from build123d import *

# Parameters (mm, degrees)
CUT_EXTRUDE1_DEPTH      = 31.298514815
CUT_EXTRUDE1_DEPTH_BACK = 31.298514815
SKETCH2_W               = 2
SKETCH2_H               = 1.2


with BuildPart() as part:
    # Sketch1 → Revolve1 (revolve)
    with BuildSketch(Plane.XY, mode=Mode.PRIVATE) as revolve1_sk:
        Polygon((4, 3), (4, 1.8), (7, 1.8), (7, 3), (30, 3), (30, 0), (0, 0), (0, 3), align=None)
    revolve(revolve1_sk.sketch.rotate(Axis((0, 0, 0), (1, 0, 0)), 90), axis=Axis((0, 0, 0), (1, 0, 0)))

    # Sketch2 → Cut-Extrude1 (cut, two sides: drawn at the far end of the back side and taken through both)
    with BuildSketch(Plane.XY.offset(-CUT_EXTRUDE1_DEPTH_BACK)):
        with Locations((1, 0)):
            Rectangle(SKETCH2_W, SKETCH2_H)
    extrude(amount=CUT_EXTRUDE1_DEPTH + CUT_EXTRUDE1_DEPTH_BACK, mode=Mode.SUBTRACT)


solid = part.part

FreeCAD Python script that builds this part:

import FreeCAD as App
import Part
import Sketcher

V = App.Vector

doc = App.newDocument("Part")
body = doc.addObject("PartDesign::Body", "Body")

# Sketch on XY plane
sketch1 = body.newObject("Sketcher::SketchObject", "Sketch")
sketch1.AttachmentSupport = (doc.getObject("XY_Plane"), [""])
sketch1.MapMode = "FlatFace"
sketch1.addGeometry([
    Part.LineSegment(V(4, 1.8, 0), V(4, 3, 0)),  # 0
    Part.LineSegment(V(4, 3, 0), V(0, 3, 0)),  # 1
    Part.LineSegment(V(0, 3, 0), V(0, 0, 0)),  # 2
    Part.LineSegment(V(0, 0, 0), V(30, 0, 0)),  # 3
    Part.LineSegment(V(30, 0, 0), V(30, 3, 0)),  # 4
    Part.LineSegment(V(30, 3, 0), V(7, 3, 0)),  # 5
    Part.LineSegment(V(7, 3, 0), V(7, 1.8, 0)),  # 6
    Part.LineSegment(V(7, 1.8, 0), V(4, 1.8, 0)),  # 7
], False)
sketch1.addConstraint([
    Sketcher.Constraint("Coincident", 0, 2, 1, 1),
    Sketcher.Constraint("Coincident", 1, 2, 2, 1),
    Sketcher.Constraint("Coincident", 2, 2, 3, 1),
    Sketcher.Constraint("Coincident", 3, 2, 4, 1),
    Sketcher.Constraint("Coincident", 4, 2, 5, 1),
    Sketcher.Constraint("Coincident", 5, 2, 6, 1),
    Sketcher.Constraint("Coincident", 6, 2, 7, 1),
    Sketcher.Constraint("Coincident", 7, 2, 0, 1),
    Sketcher.Constraint("Vertical", 0),
    Sketcher.Constraint("Horizontal", 1),
    Sketcher.Constraint("Vertical", 2),
    Sketcher.Constraint("Horizontal", 3),
    Sketcher.Constraint("Vertical", 4),
    Sketcher.Constraint("Horizontal", 5),
    Sketcher.Constraint("Vertical", 6),
    Sketcher.Constraint("Horizontal", 7),
    Sketcher.Constraint("Coincident", 2, 2, -1, 1),
    Sketcher.Constraint("Horizontal", 1, 2, 4, 2),
    Sketcher.Constraint("Equal", 7, 2),
    Sketcher.Constraint("DistanceX", 1, 2, 1, 1, 4.0),
    Sketcher.Constraint("DistanceX", 3, 1, 3, 2, 30.0),
    Sketcher.Constraint("DistanceX", 5, 2, 5, 1, 23.0),
    Sketcher.Constraint("DistanceY", 0, 1, 0, 2, 1.2),
])
revolution = body.newObject("PartDesign::Revolution", "Revolution")
revolution.Profile = sketch1
revolution.ReferenceAxis = (sketch1, ["H_Axis"])
revolution.Angle = 360

# Sketch on XY plane
sketch2 = body.newObject("Sketcher::SketchObject", "Sketch001")
sketch2.AttachmentSupport = (doc.getObject("XY_Plane"), [""])
sketch2.MapMode = "FlatFace"
sketch2.addGeometry([
    Part.LineSegment(V(0, 0.6, 0), V(0, -0.6, 0)),
    Part.LineSegment(V(0, -0.6, 0), V(2, -0.6, 0)),
    Part.LineSegment(V(2, -0.6, 0), V(2, 0.6, 0)),
    Part.LineSegment(V(2, 0.6, 0), V(0, 0.6, 0)),
], False)
sketch2.addConstraint([
    Sketcher.Constraint("Coincident", 0, 2, 1, 1),
    Sketcher.Constraint("Coincident", 1, 2, 2, 1),
    Sketcher.Constraint("Coincident", 2, 2, 3, 1),
    Sketcher.Constraint("Coincident", 3, 2, 0, 1),
    Sketcher.Constraint("Vertical", 0),
    Sketcher.Constraint("Horizontal", 1),
    Sketcher.Constraint("Vertical", 2),
    Sketcher.Constraint("Horizontal", 3),
    Sketcher.Constraint("Symmetric", 0, 2, 3, 2, -1, 1),
    Sketcher.Constraint("DistanceX", 1, 1, 1, 2, 2.0),
    Sketcher.Constraint("DistanceY", 0, 2, 0, 1, 1.2),
])
pocket1 = body.newObject("PartDesign::Pocket", "Pocket")
pocket1.Profile = sketch2
pocket1.Type = "ThroughAll"
pocket1.Midplane = True

doc.recompute()
